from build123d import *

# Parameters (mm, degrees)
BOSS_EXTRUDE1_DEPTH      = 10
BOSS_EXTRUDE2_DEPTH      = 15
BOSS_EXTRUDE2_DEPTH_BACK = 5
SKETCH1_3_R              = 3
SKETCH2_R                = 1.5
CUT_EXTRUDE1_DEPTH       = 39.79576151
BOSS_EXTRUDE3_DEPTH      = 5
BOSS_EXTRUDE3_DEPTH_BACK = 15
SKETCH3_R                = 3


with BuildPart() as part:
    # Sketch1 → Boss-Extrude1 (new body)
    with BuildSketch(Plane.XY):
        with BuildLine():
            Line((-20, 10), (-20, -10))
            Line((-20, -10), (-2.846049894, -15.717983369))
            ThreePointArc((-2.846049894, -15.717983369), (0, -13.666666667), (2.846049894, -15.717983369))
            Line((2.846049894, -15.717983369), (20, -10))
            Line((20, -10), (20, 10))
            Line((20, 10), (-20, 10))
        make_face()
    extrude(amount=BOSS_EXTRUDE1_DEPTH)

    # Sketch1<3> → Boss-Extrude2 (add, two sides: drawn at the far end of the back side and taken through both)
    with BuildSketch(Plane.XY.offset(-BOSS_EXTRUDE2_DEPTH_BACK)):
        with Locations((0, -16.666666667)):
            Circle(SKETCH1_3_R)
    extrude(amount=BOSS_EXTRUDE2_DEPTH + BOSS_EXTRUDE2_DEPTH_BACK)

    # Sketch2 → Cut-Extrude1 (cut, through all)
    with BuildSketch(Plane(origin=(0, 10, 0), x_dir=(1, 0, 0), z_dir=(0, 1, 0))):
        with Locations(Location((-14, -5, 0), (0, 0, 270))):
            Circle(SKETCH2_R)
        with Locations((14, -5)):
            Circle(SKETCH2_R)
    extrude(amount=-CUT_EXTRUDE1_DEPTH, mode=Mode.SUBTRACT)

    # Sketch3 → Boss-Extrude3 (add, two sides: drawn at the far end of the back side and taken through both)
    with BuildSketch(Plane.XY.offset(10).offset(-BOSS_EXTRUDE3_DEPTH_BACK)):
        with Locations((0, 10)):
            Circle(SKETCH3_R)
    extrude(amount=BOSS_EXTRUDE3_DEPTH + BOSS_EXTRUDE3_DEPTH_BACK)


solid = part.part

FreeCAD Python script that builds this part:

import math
import FreeCAD as App
import Part
import Sketcher
from FreeCAD import Vector
Q = App.Units.Quantity

doc = App.newDocument("Part")
params = doc.addObject("Spreadsheet::Sheet", "Params")
for row, (alias, value) in enumerate([
    ("sketch1_radius", "3 mm"),
    ("sketch1_width", "40 mm"),
    ("sketch1_height", "20 mm"),
    ("pad1_length", "10 mm"),
    ("sketch2_diameter", "6 mm"),
    ("pad2_length", "15 mm"),
    ("pad2_length2", "5 mm"),
    ("sketch3_diameter", "3 mm"),
    ("sketch4_diameter", "6 mm"),
    ("pad3_length", "5 mm"),
    ("pad3_length2", "15 mm"),
], start=1):
    params.set(f"A{row}", alias)
    params.set(f"B{row}", "=" + value)
    params.setAlias(f"B{row}", alias)

body = doc.addObject("PartDesign::Body", "Body")

sketch1 = body.newObject("Sketcher::SketchObject", "Sketch")
sketch1.AttachmentSupport = (doc.getObject("XY_Plane"), [""])
sketch1.MapMode = "FlatFace"
sketch1.addGeometry([
    Part.LineSegment(Vector(-20, 10, 0), Vector(-20, -10, 0)),
    Part.LineSegment(Vector(-20, -10, 0), Vector(-2.8, -15.7, 0)),
    Part.ArcOfCircle(Part.Circle(Vector(0, -16.7, 0), Vector(0, 0, 1), 3), math.radians(18), math.radians(162)),
    Part.LineSegment(Vector(2.8, -15.7, 0), Vector(20, -10, 0)),
    Part.LineSegment(Vector(20, -10, 0), Vector(20, 10, 0)),
    Part.LineSegment(Vector(20, 10, 0), Vector(-20, 10, 0)),
], False)
sketch1.addConstraint([
    Sketcher.Constraint("Coincident", 0, 2, 1, 1),
    Sketcher.Constraint("Coincident", 1, 2, 2, 2),
    Sketcher.Constraint("Coincident", 2, 1, 3, 1),
    Sketcher.Constraint("Coincident", 3, 2, 4, 1),
    Sketcher.Constraint("Coincident", 4, 2, 5, 1),
    Sketcher.Constraint("Coincident", 5, 2, 0, 1),
    Sketcher.Constraint("Vertical", 0),
    Sketcher.Constraint("Vertical", 4),
    Sketcher.Constraint("Horizontal", 5),
    Sketcher.Constraint("Symmetric", 0, 2, 4, 2, -1, 1),
    Sketcher.Constraint("Symmetric", 1, 2, 2, 1, -2),
    Sketcher.Constraint("Horizontal", 0, 2, 3, 2),
    Sketcher.Constraint("Radius", 2, Q("3 mm")),
    Sketcher.Constraint("DistanceX", 5, 2, 5, 1, Q("40 mm")),
    Sketcher.Constraint("DistanceY", 0, 2, 0, 1, Q("20 mm")),
    Sketcher.Constraint("DistanceX", 1, 2, 2, 1, Q("5.6921 mm")),
    Sketcher.Constraint("Distance", 1, Q("18.081851 mm")),
])
sketch1.setExpression("Constraints[12]", "Params.sketch1_radius")
sketch1.setExpression("Constraints[13]", "Params.sketch1_width")
sketch1.setExpression("Constraints[14]", "Params.sketch1_height")
pad1 = body.newObject("PartDesign::Pad", "Pad")
pad1.Profile = sketch1
pad1.setExpression("Length", "Params.pad1_length")

sketch2 = body.newObject("Sketcher::SketchObject", "Sketch001")
sketch2.AttachmentSupport = (doc.getObject("XY_Plane"), [""])
sketch2.MapMode = "FlatFace"
sketch2.addGeometry(Part.Circle(Vector(0, -16.7, 0), Vector(0, 0, 1), 3), False)
sketch2.addConstraint([
    Sketcher.Constraint("PointOnObject", 0, 3, -2),
    Sketcher.Constraint("Diameter", 0, Q("6 mm")),
    Sketcher.Constraint("DistanceY", 0, 3, -1, 1, Q("16.666667 mm")),
])
sketch2.setExpression("Constraints[1]", "Params.sketch2_diameter")
pad2 = body.newObject("PartDesign::Pad", "Pad001")
pad2.Profile = sketch2
pad2.Type = "TwoLengths"
pad2.setExpression("Length", "Params.pad2_length")
pad2.setExpression("Length2", "Params.pad2_length2")

sketch3 = body.newObject("Sketcher::SketchObject", "Sketch002")
sketch3.AttachmentSupport = (doc.getObject("XZ_Plane"), [""])
sketch3.MapMode = "FlatFace"
sketch3.AttachmentOffset = App.Placement(Vector(0, 0, -10), App.Rotation())
sketch3.addGeometry([
    Part.Circle(Vector(-14, 5, 0), Vector(0, 0, 1), 1.5),
    Part.Circle(Vector(14, 5, 0), Vector(0, 0, 1), 1.5),
], False)
sketch3.addConstraint([
    Sketcher.Constraint("Equal", 0, 1),
    Sketcher.Constraint("Symmetric", 0, 3, 1, 3, -2),
    Sketcher.Constraint("Diameter", 0, Q("3 mm")),
    Sketcher.Constraint("DistanceX", 0, 3, -1, 1, Q("14 mm")),
    Sketcher.Constraint("DistanceY", -1, 1, 0, 3, Q("5 mm")),
])
sketch3.setExpression("Constraints[2]", "Params.sketch3_diameter")
pocket1 = body.newObject("PartDesign::Pocket", "Pocket")
pocket1.Profile = sketch3
pocket1.Type = "ThroughAll"
pocket1.Reversed = True

sketch4 = body.newObject("Sketcher::SketchObject", "Sketch003")
sketch4.AttachmentSupport = (doc.getObject("XY_Plane"), [""])
sketch4.MapMode = "FlatFace"
sketch4.AttachmentOffset = App.Placement(Vector(0, 0, 10), App.Rotation())
sketch4.addGeometry(Part.Circle(Vector(0, 10, 0), Vector(0, 0, 1), 3), False)
sketch4.addConstraint([
    Sketcher.Constraint("PointOnObject", 0, 3, -2),
    Sketcher.Constraint("Diameter", 0, Q("6 mm")),
    Sketcher.Constraint("DistanceY", -1, 1, 0, 3, Q("10 mm")),
])
sketch4.setExpression("Constraints[1]", "Params.sketch4_diameter")
pad3 = body.newObject("PartDesign::Pad", "Pad002")
pad3.Profile = sketch4
pad3.Type = "TwoLengths"
pad3.setExpression("Length", "Params.pad3_length")
pad3.setExpression("Length2", "Params.pad3_length2")

doc.recompute()
